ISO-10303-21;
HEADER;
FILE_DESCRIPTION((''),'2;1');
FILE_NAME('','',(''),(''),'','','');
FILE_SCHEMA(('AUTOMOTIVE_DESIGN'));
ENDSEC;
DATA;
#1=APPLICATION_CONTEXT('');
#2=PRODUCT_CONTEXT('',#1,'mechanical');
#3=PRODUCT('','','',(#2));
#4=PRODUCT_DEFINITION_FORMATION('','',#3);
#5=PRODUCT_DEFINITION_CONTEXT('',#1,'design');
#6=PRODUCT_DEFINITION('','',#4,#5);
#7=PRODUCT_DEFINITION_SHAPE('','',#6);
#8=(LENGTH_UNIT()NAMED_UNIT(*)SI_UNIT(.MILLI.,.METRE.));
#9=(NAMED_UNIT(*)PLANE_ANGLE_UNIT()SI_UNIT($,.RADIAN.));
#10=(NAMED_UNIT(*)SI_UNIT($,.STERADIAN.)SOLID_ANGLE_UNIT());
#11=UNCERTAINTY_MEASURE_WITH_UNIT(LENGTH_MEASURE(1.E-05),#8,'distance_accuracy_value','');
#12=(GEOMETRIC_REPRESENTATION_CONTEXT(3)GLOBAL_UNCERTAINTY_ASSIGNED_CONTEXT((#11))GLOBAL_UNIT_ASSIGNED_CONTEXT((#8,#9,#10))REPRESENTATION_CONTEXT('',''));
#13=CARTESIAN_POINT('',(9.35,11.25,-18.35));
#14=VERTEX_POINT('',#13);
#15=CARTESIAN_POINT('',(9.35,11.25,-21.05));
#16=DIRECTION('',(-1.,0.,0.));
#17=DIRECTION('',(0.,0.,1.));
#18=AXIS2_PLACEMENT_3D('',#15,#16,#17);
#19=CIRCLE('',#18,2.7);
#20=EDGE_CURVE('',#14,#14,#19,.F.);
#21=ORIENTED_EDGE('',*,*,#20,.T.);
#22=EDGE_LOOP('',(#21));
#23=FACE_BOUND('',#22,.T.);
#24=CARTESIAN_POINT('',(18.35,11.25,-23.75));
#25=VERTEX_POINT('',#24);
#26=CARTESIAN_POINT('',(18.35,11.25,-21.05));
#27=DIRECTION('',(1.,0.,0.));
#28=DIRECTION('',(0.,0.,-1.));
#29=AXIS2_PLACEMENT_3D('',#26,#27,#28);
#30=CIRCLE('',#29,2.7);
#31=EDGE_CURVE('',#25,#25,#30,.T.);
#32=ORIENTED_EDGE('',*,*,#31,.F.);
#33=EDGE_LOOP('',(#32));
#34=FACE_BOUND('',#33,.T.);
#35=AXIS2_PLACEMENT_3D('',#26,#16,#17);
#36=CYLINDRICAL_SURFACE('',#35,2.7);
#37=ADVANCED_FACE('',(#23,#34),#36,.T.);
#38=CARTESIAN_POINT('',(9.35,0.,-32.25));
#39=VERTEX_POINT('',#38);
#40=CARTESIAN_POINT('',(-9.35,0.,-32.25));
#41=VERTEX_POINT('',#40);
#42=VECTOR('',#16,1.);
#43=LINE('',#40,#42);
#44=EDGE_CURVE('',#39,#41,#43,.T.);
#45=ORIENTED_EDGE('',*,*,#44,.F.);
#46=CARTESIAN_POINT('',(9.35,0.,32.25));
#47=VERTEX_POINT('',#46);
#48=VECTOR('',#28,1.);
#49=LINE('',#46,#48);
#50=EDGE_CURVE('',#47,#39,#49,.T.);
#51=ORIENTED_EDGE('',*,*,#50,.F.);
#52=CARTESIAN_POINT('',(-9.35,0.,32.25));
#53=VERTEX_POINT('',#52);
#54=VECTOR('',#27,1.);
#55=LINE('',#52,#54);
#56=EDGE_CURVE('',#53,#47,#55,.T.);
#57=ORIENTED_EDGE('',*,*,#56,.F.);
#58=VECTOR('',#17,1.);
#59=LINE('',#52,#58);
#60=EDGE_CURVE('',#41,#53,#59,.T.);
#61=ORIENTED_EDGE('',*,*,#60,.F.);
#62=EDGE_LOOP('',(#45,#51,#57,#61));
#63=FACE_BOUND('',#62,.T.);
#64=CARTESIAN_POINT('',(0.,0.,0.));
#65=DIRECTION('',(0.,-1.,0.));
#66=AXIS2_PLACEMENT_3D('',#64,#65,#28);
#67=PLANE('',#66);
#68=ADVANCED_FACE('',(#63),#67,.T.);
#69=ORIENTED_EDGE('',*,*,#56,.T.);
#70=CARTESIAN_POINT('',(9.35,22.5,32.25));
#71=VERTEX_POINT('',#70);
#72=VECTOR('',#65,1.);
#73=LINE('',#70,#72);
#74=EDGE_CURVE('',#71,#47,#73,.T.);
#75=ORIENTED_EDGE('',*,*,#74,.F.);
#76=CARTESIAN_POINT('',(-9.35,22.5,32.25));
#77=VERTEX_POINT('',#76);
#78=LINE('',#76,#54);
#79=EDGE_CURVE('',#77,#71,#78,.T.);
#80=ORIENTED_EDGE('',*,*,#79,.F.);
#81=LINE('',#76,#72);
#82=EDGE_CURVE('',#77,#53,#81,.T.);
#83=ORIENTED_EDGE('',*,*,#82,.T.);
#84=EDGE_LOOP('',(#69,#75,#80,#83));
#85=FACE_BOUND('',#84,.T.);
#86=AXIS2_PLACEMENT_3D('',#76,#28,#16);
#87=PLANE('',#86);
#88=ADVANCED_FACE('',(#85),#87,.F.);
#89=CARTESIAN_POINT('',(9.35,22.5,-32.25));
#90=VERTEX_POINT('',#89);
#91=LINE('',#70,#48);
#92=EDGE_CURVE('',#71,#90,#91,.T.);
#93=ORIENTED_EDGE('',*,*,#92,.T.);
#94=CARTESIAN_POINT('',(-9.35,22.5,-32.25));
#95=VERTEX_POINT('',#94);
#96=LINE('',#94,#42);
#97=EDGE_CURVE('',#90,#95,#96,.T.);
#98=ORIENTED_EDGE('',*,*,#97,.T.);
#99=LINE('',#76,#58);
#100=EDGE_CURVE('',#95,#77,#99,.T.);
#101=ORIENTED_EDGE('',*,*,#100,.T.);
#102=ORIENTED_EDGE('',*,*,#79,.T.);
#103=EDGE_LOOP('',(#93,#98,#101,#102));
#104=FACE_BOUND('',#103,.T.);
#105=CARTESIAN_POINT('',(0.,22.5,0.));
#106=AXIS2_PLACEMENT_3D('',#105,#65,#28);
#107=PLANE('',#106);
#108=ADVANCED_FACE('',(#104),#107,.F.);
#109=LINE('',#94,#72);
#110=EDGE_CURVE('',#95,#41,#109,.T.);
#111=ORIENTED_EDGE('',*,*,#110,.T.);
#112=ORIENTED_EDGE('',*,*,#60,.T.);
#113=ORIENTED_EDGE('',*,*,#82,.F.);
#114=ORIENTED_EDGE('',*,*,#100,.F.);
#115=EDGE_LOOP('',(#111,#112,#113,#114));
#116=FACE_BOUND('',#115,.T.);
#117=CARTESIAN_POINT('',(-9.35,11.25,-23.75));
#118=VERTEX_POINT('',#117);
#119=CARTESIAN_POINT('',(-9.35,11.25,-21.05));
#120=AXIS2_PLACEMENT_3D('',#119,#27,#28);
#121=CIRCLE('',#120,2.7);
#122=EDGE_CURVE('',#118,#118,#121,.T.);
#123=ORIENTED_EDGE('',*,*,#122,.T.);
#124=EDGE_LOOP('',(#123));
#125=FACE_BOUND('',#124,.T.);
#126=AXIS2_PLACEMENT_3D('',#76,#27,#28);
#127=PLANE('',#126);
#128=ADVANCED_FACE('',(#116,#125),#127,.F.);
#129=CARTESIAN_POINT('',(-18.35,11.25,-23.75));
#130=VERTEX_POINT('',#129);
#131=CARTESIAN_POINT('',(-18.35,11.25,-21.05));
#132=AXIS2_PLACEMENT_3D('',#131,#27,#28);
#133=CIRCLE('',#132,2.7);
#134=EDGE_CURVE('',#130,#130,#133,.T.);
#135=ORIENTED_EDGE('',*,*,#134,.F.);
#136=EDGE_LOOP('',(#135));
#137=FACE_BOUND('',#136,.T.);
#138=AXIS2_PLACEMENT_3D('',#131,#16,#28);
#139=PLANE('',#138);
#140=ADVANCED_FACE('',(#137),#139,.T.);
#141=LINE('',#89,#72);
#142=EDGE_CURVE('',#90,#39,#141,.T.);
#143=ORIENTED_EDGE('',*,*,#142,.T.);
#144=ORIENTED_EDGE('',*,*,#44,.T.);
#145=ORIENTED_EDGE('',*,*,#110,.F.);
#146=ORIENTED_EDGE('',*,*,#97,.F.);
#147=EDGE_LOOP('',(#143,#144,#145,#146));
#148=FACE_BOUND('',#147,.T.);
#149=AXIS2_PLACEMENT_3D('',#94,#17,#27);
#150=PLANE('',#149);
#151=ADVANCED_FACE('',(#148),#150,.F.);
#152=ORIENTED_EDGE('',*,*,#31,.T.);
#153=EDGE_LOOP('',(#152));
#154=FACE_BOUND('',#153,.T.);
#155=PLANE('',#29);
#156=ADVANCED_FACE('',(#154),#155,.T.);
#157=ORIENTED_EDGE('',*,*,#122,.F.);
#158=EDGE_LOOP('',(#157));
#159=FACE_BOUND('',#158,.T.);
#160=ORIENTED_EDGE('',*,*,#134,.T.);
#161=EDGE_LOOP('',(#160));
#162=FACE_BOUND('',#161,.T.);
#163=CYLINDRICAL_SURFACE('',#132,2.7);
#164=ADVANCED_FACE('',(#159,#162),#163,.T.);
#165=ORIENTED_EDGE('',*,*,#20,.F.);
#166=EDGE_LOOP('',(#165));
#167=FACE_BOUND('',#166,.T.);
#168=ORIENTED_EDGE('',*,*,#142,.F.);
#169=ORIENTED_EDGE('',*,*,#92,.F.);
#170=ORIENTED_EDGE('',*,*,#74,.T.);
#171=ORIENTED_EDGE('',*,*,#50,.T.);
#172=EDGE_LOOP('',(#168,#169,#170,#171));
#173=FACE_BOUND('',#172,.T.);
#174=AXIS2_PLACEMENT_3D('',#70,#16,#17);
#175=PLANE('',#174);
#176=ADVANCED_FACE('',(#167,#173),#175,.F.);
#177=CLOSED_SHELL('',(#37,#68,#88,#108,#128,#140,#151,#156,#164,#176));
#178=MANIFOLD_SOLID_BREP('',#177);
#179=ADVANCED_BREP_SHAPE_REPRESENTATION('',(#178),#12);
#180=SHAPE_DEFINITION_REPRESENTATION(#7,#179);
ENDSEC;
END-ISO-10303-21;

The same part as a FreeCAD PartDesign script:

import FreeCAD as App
import Part
import Sketcher

V = App.Vector
Q = App.Units.Quantity


def add_polygon(sketch, points):
    """Adds a closed chain of lines whose ends are joined by coincident constraints."""
    first, n = sketch.GeometryCount, len(points)
    for a, b in zip(points, points[1:] + points[:1]):
        sketch.addGeometry(Part.LineSegment(App.Vector(*a, 0), App.Vector(*b, 0)), False)
    for i in range(n):
        sketch.addConstraint(Sketcher.Constraint("Coincident", first + i, 2, first + (i + 1) % n, 1))

doc = App.newDocument("Part")
body = doc.addObject("PartDesign::Body", "Body")

sketch1 = body.newObject("Sketcher::SketchObject", "Sketch")
sketch1.AttachmentSupport = (doc.getObject("XZ_Plane"), [""])
sketch1.MapMode = "FlatFace"
add_polygon(sketch1, [(-9, -32), (-9, 32), (9, 32), (9, -32)])
sketch1.addConstraint([
    Sketcher.Constraint("Vertical", 0),
    Sketcher.Constraint("Horizontal", 1),
    Sketcher.Constraint("Vertical", 2),
    Sketcher.Constraint("Horizontal", 3),
    Sketcher.Constraint("Symmetric", 0, 2, 2, 2, -1, 1),
    Sketcher.Constraint("DistanceX", 1, 1, 1, 2, Q("18.7 mm")),
    Sketcher.Constraint("DistanceY", 0, 1, 0, 2, Q("64.5 mm")),
])
pad1 = body.newObject("PartDesign::Pad", "Pad")
pad1.Profile = sketch1
pad1.Length = 22.5
pad1.Reversed = True

sketch2 = body.newObject("Sketcher::SketchObject", "Sketch001")
sketch2.AttachmentSupport = (doc.getObject("YZ_Plane"), [""])
sketch2.MapMode = "FlatFace"
sketch2.AttachmentOffset = App.Placement(V(0, 0, 9.35), App.Rotation())
sketch2.addGeometry(Part.Circle(V(11.2, -21.1, 0), V(0, 0, 1), 2.7), False)
sketch2.addConstraint([
    Sketcher.Constraint("Diameter", 0, Q("5.4 mm")),
    Sketcher.Constraint("DistanceX", -1, 1, 0, 3, Q("11.25 mm")),
    Sketcher.Constraint("DistanceY", 0, 3, -1, 1, Q("21.05 mm")),
])
pad2 = body.newObject("PartDesign::Pad", "Pad001")
pad2.Profile = sketch2
pad2.Length = 9
doc.recompute()

mirrored = body.newObject("PartDesign::Mirrored", "Mirrored")
mirrored.Originals = [pad2]
mirrored.MirrorPlane = (doc.getObject("YZ_Plane"), [""])
body.Tip = mirrored

doc.recompute()
